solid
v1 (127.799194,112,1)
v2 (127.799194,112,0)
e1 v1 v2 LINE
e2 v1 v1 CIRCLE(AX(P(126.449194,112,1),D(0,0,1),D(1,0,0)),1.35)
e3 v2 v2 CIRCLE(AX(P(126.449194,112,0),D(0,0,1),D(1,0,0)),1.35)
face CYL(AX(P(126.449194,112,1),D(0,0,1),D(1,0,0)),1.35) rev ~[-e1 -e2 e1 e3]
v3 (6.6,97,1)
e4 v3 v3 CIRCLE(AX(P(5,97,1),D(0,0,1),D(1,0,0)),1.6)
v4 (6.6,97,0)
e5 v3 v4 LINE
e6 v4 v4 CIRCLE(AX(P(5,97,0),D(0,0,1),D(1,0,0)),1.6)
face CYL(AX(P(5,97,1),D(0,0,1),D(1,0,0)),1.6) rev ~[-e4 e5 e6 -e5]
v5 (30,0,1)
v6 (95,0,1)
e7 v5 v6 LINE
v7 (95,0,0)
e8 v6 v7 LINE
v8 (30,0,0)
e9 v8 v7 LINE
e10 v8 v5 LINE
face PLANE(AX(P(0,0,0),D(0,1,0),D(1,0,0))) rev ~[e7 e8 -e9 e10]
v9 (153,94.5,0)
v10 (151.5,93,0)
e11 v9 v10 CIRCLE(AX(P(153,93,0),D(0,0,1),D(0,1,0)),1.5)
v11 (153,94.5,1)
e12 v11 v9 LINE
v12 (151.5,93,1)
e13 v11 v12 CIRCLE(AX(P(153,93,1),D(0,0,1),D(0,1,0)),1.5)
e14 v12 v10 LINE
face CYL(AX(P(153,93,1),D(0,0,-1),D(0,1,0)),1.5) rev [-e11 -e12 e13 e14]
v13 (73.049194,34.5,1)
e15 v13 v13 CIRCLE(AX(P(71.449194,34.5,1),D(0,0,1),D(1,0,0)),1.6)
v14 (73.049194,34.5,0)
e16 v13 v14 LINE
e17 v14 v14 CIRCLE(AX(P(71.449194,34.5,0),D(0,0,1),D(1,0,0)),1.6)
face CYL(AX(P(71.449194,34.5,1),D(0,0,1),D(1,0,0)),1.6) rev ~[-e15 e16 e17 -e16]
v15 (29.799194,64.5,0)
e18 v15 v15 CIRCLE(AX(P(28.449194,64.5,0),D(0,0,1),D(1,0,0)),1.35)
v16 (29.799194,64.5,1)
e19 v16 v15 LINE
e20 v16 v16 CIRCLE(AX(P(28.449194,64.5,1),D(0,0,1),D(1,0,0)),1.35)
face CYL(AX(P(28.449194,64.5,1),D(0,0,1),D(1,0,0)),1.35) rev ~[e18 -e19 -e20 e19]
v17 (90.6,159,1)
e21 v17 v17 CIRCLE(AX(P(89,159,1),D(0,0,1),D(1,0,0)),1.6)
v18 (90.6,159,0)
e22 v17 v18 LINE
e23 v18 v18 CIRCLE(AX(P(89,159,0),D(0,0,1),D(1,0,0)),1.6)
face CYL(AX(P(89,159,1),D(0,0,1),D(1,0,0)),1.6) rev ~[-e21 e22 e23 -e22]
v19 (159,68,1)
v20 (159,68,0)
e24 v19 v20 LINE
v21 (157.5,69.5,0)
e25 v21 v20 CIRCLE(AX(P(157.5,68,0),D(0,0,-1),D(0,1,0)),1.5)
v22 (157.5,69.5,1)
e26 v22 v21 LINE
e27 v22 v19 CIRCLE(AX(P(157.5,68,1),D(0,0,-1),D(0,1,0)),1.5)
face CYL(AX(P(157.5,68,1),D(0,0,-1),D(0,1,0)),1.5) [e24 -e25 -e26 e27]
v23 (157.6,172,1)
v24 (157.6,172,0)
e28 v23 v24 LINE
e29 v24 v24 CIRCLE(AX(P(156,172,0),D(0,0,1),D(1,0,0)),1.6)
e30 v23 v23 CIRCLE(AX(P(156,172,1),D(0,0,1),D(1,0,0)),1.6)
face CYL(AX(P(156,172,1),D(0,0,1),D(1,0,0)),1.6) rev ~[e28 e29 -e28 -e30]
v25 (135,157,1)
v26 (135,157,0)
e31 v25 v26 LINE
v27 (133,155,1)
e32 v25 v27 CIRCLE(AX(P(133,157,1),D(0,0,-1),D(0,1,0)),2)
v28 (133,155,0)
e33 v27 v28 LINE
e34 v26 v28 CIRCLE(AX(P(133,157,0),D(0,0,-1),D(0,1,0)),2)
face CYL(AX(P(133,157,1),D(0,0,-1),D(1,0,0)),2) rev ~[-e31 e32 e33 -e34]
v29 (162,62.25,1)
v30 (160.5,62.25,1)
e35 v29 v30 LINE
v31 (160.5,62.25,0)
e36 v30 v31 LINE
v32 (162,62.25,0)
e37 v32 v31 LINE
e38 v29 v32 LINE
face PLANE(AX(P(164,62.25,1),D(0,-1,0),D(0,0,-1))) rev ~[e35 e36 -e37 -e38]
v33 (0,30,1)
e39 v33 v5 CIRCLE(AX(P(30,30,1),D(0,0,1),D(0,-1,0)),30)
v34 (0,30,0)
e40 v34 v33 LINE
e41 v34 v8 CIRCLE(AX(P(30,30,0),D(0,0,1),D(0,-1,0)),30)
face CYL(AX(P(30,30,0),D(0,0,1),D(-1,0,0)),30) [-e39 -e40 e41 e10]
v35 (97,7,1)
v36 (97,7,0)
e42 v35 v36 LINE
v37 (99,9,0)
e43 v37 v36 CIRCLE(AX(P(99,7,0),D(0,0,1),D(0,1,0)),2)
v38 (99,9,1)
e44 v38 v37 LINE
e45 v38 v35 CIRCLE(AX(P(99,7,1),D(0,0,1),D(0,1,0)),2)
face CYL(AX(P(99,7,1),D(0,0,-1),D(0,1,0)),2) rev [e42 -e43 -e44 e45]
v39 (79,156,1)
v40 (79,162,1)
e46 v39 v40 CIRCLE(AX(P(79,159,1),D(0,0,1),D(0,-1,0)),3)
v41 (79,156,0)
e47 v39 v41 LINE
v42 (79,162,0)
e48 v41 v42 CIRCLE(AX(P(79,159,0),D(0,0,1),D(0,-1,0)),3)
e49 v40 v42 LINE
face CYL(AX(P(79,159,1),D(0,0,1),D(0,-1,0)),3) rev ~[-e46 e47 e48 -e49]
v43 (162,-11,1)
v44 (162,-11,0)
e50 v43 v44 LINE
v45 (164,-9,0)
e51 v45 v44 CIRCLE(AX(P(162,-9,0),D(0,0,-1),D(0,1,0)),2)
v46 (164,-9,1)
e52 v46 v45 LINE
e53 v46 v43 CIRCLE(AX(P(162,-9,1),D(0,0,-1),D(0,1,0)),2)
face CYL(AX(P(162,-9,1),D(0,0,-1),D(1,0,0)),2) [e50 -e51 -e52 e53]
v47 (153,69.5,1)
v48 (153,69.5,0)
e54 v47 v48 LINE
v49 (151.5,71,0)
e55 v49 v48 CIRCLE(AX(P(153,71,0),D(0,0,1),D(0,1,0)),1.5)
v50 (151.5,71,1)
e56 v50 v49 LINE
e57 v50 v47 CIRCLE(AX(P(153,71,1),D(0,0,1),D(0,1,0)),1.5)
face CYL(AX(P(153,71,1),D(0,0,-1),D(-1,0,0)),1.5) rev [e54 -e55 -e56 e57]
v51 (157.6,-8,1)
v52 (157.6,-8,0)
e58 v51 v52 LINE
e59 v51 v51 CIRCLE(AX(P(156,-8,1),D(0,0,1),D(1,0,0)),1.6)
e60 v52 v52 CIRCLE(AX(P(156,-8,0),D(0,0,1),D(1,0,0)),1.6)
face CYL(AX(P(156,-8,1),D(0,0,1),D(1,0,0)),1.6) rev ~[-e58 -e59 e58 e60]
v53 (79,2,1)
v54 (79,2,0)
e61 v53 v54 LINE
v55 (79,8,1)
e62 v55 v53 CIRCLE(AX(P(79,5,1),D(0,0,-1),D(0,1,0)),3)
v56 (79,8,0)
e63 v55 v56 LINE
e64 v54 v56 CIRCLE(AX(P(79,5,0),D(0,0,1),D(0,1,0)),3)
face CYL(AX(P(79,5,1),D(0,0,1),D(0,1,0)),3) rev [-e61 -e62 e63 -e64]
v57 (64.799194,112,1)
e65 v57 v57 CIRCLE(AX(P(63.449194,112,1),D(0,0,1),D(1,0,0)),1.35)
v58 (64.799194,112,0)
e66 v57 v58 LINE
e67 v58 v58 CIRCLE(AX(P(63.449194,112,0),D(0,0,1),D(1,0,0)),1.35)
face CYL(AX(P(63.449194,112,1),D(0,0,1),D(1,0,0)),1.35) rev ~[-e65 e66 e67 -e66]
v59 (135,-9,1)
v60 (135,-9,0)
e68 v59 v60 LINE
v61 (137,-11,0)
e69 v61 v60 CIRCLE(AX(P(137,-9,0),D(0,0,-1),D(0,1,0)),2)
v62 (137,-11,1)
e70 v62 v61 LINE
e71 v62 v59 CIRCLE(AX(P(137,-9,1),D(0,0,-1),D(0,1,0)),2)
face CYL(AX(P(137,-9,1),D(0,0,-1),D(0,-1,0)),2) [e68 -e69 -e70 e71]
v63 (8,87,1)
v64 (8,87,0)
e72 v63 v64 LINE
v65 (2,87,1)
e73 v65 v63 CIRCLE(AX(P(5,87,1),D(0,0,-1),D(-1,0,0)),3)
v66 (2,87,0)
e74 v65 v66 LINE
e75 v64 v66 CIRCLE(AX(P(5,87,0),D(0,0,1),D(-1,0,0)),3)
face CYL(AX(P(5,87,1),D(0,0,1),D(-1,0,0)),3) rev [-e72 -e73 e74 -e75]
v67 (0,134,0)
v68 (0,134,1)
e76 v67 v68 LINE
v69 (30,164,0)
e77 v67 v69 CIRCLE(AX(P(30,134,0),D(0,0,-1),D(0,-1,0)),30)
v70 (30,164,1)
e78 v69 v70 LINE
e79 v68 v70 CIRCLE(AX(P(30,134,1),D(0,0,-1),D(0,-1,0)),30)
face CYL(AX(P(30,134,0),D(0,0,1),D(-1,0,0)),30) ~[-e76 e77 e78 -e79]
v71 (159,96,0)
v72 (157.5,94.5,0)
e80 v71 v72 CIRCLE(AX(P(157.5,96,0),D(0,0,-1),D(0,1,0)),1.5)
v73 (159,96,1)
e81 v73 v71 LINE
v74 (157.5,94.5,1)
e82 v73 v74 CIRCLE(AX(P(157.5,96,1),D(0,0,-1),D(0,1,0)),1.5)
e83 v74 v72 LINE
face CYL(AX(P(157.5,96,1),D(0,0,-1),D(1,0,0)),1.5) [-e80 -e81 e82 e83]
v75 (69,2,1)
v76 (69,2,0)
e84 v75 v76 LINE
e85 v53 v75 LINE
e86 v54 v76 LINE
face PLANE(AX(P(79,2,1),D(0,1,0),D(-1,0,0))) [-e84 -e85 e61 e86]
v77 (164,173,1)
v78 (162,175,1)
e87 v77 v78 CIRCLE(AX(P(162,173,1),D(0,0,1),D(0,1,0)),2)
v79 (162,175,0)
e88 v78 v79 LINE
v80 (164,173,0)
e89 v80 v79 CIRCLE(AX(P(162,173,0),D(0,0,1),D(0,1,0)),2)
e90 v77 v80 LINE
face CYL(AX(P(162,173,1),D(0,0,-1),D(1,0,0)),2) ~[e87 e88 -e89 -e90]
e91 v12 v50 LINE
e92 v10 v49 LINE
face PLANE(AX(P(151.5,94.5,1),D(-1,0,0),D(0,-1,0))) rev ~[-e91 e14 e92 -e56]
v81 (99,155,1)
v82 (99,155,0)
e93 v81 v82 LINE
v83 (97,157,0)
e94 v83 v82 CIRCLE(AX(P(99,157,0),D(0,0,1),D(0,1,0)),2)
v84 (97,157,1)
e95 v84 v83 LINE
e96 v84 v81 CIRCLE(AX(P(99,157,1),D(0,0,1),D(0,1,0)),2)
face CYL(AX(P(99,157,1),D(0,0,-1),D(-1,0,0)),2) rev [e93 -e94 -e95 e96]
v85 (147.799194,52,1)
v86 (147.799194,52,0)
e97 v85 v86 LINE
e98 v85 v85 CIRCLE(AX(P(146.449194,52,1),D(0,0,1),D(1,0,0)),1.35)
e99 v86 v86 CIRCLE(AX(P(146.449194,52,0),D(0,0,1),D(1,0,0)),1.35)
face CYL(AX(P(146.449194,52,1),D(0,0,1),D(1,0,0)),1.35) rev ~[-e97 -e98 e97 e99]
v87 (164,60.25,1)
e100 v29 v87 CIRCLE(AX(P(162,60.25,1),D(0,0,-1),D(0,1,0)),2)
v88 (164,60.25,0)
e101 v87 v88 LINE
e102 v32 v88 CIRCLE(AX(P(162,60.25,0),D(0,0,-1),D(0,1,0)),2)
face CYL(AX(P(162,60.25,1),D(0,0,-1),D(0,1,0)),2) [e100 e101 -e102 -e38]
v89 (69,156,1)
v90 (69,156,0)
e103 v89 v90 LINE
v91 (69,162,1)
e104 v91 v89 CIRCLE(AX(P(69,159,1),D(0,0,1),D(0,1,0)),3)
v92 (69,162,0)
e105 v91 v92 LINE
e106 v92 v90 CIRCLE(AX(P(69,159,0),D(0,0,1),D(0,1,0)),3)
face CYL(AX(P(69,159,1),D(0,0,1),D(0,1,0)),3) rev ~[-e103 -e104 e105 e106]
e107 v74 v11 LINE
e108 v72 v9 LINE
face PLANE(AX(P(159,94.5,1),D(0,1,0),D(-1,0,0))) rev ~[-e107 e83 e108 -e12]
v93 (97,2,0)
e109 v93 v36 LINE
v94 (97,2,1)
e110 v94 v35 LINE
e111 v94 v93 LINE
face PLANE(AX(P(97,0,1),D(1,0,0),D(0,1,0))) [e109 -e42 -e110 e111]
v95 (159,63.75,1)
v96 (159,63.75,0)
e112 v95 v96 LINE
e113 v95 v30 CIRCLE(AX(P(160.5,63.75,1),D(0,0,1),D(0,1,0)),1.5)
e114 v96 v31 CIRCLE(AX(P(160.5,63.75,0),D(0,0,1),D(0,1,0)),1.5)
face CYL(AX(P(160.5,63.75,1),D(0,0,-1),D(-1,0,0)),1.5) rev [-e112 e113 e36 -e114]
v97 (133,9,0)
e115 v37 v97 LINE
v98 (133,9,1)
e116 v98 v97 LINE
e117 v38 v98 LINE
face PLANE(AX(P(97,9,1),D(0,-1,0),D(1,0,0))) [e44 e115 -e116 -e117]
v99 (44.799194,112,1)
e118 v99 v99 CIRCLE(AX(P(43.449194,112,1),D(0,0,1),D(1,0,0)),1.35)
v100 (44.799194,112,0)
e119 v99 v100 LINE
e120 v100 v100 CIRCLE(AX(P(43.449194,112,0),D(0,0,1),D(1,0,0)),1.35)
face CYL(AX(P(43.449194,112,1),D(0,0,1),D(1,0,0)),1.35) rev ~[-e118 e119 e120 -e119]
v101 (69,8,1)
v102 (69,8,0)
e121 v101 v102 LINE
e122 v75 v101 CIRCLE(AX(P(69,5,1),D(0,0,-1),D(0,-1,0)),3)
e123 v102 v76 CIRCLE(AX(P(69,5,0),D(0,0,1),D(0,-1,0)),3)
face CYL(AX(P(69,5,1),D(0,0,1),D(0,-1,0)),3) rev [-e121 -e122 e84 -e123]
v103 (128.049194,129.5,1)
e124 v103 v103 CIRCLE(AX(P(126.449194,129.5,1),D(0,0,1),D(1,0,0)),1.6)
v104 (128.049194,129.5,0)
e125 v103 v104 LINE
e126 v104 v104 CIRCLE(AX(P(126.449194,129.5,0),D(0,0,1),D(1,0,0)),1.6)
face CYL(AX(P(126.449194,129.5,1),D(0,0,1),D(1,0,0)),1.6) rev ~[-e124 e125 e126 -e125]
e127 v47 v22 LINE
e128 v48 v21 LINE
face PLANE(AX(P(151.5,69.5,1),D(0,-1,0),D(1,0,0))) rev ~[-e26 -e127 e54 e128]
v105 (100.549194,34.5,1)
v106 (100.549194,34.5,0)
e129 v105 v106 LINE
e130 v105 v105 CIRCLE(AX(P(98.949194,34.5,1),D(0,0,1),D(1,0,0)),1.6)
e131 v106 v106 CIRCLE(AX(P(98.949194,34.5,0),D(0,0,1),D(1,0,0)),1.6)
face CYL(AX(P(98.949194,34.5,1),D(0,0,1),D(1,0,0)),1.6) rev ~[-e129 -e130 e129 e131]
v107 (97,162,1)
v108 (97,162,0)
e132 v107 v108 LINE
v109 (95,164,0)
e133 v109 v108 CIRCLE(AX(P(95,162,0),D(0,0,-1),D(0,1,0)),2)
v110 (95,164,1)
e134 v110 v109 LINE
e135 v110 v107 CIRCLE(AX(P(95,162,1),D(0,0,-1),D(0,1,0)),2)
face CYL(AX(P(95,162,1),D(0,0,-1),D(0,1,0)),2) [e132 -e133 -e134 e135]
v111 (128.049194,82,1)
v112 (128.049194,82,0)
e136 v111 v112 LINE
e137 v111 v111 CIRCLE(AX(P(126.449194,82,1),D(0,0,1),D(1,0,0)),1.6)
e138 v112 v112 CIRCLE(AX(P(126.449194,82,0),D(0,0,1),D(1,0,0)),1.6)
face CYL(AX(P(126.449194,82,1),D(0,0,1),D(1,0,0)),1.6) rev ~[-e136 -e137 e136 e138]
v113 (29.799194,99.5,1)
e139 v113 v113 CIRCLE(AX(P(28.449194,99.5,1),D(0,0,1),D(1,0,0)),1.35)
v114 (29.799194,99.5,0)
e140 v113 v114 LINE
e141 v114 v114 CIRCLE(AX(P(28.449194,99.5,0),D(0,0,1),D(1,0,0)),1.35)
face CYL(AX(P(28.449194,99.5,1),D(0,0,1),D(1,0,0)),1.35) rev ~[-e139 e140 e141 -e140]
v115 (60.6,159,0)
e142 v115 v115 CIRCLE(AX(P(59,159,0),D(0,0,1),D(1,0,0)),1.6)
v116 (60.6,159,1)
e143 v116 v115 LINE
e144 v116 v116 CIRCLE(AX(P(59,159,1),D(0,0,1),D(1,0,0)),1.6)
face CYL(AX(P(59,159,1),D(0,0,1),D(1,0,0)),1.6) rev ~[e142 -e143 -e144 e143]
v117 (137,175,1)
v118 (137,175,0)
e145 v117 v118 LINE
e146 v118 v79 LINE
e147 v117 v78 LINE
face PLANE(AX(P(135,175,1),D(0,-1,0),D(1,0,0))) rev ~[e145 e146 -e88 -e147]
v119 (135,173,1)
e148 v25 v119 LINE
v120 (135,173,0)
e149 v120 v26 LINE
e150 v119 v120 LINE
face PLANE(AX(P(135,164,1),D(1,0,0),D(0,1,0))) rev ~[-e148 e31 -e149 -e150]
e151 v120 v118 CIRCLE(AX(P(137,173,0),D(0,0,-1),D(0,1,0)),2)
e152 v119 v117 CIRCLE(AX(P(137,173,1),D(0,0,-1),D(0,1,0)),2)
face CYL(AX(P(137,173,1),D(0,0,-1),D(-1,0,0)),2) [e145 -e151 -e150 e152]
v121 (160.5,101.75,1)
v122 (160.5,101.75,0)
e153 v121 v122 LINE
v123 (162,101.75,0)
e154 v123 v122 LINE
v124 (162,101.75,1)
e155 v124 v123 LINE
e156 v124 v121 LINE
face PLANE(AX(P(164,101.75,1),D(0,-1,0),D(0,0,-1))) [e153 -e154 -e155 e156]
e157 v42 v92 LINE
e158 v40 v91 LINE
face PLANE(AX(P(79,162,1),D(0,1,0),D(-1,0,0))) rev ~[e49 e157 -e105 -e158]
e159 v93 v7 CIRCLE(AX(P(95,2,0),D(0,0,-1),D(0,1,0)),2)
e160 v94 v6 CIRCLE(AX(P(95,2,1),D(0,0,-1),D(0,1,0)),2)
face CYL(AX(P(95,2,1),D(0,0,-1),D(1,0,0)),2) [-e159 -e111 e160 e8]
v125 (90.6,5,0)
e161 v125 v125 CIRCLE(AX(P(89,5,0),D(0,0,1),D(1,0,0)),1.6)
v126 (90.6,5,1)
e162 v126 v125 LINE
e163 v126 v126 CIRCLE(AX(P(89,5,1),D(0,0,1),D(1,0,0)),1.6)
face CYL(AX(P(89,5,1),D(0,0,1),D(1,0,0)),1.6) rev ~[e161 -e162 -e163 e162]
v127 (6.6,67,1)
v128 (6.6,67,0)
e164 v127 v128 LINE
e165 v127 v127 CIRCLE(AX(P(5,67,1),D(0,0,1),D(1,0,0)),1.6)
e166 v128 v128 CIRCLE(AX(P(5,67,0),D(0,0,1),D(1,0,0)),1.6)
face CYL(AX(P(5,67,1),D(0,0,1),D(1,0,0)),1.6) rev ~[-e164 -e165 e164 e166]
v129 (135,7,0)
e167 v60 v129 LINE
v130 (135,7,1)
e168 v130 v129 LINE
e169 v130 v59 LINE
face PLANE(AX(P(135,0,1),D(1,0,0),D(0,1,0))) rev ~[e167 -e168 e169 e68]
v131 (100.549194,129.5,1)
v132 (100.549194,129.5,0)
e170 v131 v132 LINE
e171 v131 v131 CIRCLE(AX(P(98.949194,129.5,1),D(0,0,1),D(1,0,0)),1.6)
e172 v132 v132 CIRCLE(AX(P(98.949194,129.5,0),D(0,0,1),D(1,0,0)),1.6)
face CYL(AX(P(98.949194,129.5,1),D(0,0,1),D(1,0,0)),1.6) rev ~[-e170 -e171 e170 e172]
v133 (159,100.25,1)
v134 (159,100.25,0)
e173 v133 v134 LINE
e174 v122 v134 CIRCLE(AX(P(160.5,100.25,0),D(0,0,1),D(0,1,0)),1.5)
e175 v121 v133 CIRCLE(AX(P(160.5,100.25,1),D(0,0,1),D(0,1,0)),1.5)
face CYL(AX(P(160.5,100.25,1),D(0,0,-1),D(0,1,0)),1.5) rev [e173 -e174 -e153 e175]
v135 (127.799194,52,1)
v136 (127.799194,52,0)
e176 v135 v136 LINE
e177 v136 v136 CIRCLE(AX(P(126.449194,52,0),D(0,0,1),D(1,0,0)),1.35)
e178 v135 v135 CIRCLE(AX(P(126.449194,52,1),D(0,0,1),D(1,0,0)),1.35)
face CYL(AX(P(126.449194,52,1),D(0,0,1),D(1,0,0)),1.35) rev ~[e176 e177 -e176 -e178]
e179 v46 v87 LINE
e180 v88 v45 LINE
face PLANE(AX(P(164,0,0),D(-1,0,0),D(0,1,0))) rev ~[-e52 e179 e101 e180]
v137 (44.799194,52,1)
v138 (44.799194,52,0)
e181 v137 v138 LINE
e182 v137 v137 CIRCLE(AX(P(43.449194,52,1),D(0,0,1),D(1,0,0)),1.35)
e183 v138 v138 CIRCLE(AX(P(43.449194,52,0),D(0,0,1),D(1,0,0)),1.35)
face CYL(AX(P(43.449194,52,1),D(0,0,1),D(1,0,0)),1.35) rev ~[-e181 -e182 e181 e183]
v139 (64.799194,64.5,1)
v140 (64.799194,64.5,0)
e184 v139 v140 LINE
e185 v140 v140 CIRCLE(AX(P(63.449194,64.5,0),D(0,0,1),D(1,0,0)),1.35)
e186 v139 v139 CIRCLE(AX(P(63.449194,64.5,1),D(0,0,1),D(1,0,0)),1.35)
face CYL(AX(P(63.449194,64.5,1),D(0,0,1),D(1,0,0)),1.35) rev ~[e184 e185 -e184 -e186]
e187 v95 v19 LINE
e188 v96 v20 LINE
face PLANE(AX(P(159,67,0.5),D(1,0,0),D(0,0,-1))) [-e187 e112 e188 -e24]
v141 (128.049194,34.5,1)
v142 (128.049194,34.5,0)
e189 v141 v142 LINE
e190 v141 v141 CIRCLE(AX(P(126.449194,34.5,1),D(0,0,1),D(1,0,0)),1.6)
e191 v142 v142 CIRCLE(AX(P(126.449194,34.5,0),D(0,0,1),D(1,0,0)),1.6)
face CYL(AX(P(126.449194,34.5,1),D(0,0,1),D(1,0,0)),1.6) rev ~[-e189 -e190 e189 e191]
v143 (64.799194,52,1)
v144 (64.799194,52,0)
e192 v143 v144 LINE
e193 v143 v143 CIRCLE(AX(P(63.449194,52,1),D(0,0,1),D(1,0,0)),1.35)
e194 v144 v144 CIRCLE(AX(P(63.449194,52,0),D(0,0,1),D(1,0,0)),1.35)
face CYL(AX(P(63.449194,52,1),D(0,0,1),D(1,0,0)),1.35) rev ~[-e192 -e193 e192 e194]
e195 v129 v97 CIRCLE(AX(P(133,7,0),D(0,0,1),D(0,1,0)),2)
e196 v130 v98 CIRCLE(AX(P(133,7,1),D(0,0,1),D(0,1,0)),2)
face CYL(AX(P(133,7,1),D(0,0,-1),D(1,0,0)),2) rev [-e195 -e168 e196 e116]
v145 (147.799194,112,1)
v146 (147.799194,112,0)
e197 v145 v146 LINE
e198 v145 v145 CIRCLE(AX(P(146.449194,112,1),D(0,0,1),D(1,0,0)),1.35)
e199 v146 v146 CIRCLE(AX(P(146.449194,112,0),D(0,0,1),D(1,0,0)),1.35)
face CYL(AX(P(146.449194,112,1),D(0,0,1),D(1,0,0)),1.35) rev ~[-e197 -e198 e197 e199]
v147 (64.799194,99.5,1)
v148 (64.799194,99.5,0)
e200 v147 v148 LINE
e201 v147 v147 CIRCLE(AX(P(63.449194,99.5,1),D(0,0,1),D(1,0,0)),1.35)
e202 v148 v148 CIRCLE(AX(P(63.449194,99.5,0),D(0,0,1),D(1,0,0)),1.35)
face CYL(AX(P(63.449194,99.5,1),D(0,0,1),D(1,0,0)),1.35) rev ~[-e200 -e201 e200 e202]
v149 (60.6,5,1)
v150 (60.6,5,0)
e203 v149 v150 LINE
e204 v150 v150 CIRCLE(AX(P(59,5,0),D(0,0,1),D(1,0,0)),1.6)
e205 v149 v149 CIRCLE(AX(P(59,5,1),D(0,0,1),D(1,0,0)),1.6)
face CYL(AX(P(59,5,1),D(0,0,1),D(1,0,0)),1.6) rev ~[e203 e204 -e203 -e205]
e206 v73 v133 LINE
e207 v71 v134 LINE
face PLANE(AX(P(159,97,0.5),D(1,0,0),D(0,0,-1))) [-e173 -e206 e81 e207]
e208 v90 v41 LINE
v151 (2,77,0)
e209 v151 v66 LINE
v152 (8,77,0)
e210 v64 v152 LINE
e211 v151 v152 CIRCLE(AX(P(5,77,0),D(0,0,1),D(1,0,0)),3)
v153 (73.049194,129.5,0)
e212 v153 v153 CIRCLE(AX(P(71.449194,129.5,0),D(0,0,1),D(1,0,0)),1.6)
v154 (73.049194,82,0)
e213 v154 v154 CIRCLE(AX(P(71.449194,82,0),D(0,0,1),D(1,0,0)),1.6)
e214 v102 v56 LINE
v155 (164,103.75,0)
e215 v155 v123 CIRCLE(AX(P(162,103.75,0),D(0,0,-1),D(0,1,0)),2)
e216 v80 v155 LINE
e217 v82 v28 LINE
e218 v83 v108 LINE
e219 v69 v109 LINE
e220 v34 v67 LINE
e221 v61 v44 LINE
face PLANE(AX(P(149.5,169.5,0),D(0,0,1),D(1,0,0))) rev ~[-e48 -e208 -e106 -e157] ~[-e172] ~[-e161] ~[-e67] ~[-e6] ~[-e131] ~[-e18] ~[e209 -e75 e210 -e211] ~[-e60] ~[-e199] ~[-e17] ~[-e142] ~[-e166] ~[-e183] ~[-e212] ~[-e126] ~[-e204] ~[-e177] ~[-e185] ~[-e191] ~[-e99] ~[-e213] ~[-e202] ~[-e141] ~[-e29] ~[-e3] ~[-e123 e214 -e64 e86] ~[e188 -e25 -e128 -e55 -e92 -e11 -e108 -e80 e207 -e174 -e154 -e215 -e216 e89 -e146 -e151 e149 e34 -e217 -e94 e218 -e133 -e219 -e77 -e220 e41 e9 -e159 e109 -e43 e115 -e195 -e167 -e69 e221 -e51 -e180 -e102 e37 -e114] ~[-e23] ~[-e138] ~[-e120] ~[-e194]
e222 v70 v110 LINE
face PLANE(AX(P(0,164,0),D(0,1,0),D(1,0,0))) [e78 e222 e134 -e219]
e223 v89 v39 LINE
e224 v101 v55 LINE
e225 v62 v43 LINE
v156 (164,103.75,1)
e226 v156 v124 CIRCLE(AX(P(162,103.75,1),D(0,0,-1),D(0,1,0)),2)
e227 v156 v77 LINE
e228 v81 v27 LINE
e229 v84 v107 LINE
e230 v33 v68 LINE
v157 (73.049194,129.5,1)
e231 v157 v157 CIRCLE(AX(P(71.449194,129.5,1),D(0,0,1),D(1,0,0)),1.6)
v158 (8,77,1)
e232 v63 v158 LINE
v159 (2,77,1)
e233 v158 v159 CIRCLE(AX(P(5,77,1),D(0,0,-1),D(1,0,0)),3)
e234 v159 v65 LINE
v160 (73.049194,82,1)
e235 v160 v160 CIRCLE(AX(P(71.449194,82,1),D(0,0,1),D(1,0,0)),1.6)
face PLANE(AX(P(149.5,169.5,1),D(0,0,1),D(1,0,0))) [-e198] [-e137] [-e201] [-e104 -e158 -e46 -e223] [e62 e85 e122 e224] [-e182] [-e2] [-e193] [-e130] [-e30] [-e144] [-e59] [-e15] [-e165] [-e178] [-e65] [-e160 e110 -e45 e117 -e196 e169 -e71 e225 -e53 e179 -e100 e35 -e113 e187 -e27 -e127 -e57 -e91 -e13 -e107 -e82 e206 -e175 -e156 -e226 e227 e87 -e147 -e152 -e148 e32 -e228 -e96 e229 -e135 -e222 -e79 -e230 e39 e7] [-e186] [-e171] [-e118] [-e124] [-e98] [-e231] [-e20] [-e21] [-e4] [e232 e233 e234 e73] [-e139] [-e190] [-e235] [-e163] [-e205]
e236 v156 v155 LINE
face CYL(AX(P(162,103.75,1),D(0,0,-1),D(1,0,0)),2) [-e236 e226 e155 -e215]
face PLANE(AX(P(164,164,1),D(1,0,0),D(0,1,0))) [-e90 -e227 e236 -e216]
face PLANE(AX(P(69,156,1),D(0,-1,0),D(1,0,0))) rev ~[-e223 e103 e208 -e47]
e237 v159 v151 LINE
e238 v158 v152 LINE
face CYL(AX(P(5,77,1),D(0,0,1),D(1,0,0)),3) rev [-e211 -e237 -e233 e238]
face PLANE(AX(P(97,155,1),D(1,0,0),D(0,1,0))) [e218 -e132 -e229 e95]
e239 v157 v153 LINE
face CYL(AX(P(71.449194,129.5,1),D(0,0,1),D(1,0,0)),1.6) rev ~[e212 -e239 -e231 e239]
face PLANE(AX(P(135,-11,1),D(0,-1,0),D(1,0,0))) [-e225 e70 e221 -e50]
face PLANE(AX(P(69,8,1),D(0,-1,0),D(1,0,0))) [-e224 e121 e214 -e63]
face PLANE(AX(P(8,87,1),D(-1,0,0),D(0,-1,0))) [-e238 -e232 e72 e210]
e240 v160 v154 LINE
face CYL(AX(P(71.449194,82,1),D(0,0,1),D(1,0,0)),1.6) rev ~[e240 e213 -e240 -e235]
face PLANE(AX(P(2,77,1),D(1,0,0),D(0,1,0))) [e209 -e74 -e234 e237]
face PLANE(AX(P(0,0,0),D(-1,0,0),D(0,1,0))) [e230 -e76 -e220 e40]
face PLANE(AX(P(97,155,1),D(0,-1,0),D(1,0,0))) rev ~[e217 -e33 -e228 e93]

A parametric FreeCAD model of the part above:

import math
import FreeCAD as App
import Part
import Sketcher
Q = App.Units.Quantity


def edges_at(feature, points):
    """Names of the edges that pass closest to the given points."""
    edges = feature.Shape.Edges
    near = lambda p: min(range(len(edges)), key=lambda i: edges[i].distToShape(Part.Vertex(*p))[0])
    return sorted({f"Edge{near(p) + 1}" for p in points})

doc = App.newDocument("Part")
body = doc.addObject("PartDesign::Body", "Body")

sketch1 = body.newObject("Sketcher::SketchObject", "Sketch")
sketch1.AttachmentSupport = (doc.getObject("XY_Plane"), [""])
sketch1.MapMode = "FlatFace"
sketch1.addGeometry([
    Part.LineSegment(App.Vector(0, 164, 0), App.Vector(0, 0, 0)),
    Part.LineSegment(App.Vector(0, 0, 0), App.Vector(164, 0, 0)),
    Part.LineSegment(App.Vector(164, 0, 0), App.Vector(164, 164, 0)),
    Part.LineSegment(App.Vector(164, 164, 0), App.Vector(0, 164, 0)),
], False)
sketch1.addConstraint([
    Sketcher.Constraint("Coincident", 0, 2, 1, 1),
    Sketcher.Constraint("Coincident", 1, 2, 2, 1),
    Sketcher.Constraint("Coincident", 2, 2, 3, 1),
    Sketcher.Constraint("Coincident", 3, 2, 0, 1),
    Sketcher.Constraint("Vertical", 0),
    Sketcher.Constraint("Horizontal", 1),
    Sketcher.Constraint("Vertical", 2),
    Sketcher.Constraint("Horizontal", 3),
    Sketcher.Constraint("Coincident", 0, 2, -1, 1),
    Sketcher.Constraint("Equal", 3, 0),
    Sketcher.Constraint("DistanceX", 1, 1, 1, 2, Q("164 mm")),
])
pad1 = body.newObject("PartDesign::Pad", "Pad")
pad1.Profile = sketch1
pad1.Length = 1
doc.recompute()

fillet = body.newObject("PartDesign::Fillet", "Fillet")
fillet.Base = (pad1, edges_at(pad1, [(0, 164, 0.5), (0, 0, 0.5)]))
fillet.Radius = 30

sketch2 = body.newObject("Sketcher::SketchObject", "Sketch001")
sketch2.AttachmentSupport = (doc.getObject("XY_Plane"), [""])
sketch2.MapMode = "FlatFace"
sketch2.AttachmentOffset = App.Placement(App.Vector(0, 0, 1), App.Rotation())
sketch2.addGeometry([
    Part.Circle(App.Vector(5, 97, 0), App.Vector(0, 0, 1), 1.6),
    Part.Circle(App.Vector(5, 67, 0), App.Vector(0, 0, 1), 1.6),
    Part.LineSegment(App.Vector(2, 87, 0), App.Vector(2, 77, 0)),
    Part.ArcOfCircle(Part.Circle(App.Vector(5, 77, 0), App.Vector(0, 0, 1), 3), math.radians(180), math.radians(360)),
    Part.LineSegment(App.Vector(8, 77, 0), App.Vector(8, 87, 0)),
    Part.ArcOfCircle(Part.Circle(App.Vector(5, 87, 0), App.Vector(0, 0, 1), 3), math.radians(0), math.radians(180)),
], False)
sketch2.addConstraint([
    Sketcher.Constraint("Tangent", 2, 2, 3, 1),
    Sketcher.Constraint("Tangent", 3, 2, 4, 1),
    Sketcher.Constraint("Tangent", 4, 2, 5, 1),
    Sketcher.Constraint("Tangent", 5, 2, 2, 1),
    Sketcher.Constraint("Vertical", 2),
    Sketcher.Constraint("Vertical", 4),
    Sketcher.Constraint("Equal", 0, 1),
    Sketcher.Constraint("Vertical", 0, 3, 1, 3),
    Sketcher.Constraint("Vertical", 1, 3, 3, 3),
    Sketcher.Constraint("Radius", 3, Q("3 mm")),
    Sketcher.Constraint("Diameter", 0, Q("3.2 mm")),
    Sketcher.Constraint("DistanceY", 2, 2, 2, 1, Q("10 mm")),
    Sketcher.Constraint("DistanceX", -1, 1, 0, 3, Q("5 mm")),
    Sketcher.Constraint("DistanceY", -1, 1, 0, 3, Q("97 mm")),
    Sketcher.Constraint("DistanceY", -1, 1, 1, 3, Q("67 mm")),
    Sketcher.Constraint("DistanceY", -1, 1, 3, 3, Q("77 mm")),
])
pocket1 = body.newObject("PartDesign::Pocket", "Pocket")
pocket1.Profile = sketch2
pocket1.Type = "ThroughAll"

sketch3 = body.newObject("Sketcher::SketchObject", "Sketch002")
sketch3.AttachmentSupport = (doc.getObject("XY_Plane"), [""])
sketch3.MapMode = "FlatFace"
sketch3.AttachmentOffset = App.Placement(App.Vector(0, 0, 1), App.Rotation())
sketch3.addGeometry([
    Part.Circle(App.Vector(59, 5, 0), App.Vector(0, 0, 1), 1.6),
    Part.Circle(App.Vector(89, 5, 0), App.Vector(0, 0, 1), 1.6),
    Part.Circle(App.Vector(89, 159, 0), App.Vector(0, 0, 1), 1.6),
    Part.Circle(App.Vector(59, 159, 0), App.Vector(0, 0, 1), 1.6),
    Part.LineSegment(App.Vector(69, 2, 0), App.Vector(79, 2, 0)),
    Part.ArcOfCircle(Part.Circle(App.Vector(79, 5, 0), App.Vector(0, 0, 1), 3), math.radians(-90), math.radians(90)),
    Part.LineSegment(App.Vector(79, 8, 0), App.Vector(69, 8, 0)),
    Part.ArcOfCircle(Part.Circle(App.Vector(69, 5, 0), App.Vector(0, 0, 1), 3), math.radians(90), math.radians(270)),
    Part.LineSegment(App.Vector(79, 162, 0), App.Vector(69, 162, 0)),
    Part.ArcOfCircle(Part.Circle(App.Vector(69, 159, 0), App.Vector(0, 0, 1), 3), math.radians(90), math.radians(270)),
    Part.LineSegment(App.Vector(69, 156, 0), App.Vector(79, 156, 0)),
    Part.ArcOfCircle(Part.Circle(App.Vector(79, 159, 0), App.Vector(0, 0, 1), 3), math.radians(-90), math.radians(90)),
], False)
sketch3.addConstraint([
    Sketcher.Constraint("Tangent", 4, 2, 5, 1),
    Sketcher.Constraint("Tangent", 5, 2, 6, 1),
    Sketcher.Constraint("Tangent", 6, 2, 7, 1),
    Sketcher.Constraint("Tangent", 7, 2, 4, 1),
    Sketcher.Constraint("Tangent", 8, 2, 9, 1),
    Sketcher.Constraint("Tangent", 9, 2, 10, 1),
    Sketcher.Constraint("Tangent", 10, 2, 11, 1),
    Sketcher.Constraint("Tangent", 11, 2, 8, 1),
    Sketcher.Constraint("Horizontal", 4),
    Sketcher.Constraint("Horizontal", 6),
    Sketcher.Constraint("Horizontal", 8),
    Sketcher.Constraint("Horizontal", 10),
    Sketcher.Constraint("Equal", 0, 1),
    Sketcher.Constraint("Equal", 1, 2),
    Sketcher.Constraint("Equal", 2, 3),
    Sketcher.Constraint("Equal", 7, 9),
    Sketcher.Constraint("Horizontal", 0, 3, 1, 3),
    Sketcher.Constraint("Horizontal", 2, 3, 3, 3),
    Sketcher.Constraint("Horizontal", 1, 3, 5, 3),
    Sketcher.Constraint("Horizontal", 3, 3, 9, 3),
    Sketcher.Constraint("Vertical", 1, 3, 2, 3),
    Sketcher.Constraint("Vertical", 0, 3, 3, 3),
    Sketcher.Constraint("Vertical", 7, 3, 9, 3),
    Sketcher.Constraint("Vertical", 5, 3, 11, 3),
    Sketcher.Constraint("Radius", 5, Q("3 mm")),
    Sketcher.Constraint("Diameter", 0, Q("3.2 mm")),
    Sketcher.Constraint("DistanceX", 4, 1, 4, 2, Q("10 mm")),
    Sketcher.Constraint("DistanceX", -1, 1, 0, 3, Q("59 mm")),
    Sketcher.Constraint("DistanceY", -1, 1, 0, 3, Q("5 mm")),
    Sketcher.Constraint("DistanceX", -1, 1, 1, 3, Q("89 mm")),
    Sketcher.Constraint("DistanceY", -1, 1, 2, 3, Q("159 mm")),
    Sketcher.Constraint("DistanceX", -1, 1, 5, 3, Q("79 mm")),
])
pocket2 = body.newObject("PartDesign::Pocket", "Pocket001")
pocket2.Profile = sketch3
pocket2.Type = "ThroughAll"

sketch4 = body.newObject("Sketcher::SketchObject", "Sketch003")
sketch4.AttachmentSupport = (doc.getObject("XY_Plane"), [""])
sketch4.MapMode = "FlatFace"
sketch4.AttachmentOffset = App.Placement(App.Vector(0, 0, 1), App.Rotation())
sketch4.addGeometry([
    Part.LineSegment(App.Vector(97, 164, 0), App.Vector(97, 155, 0)),
    Part.LineSegment(App.Vector(97, 155, 0), App.Vector(135, 155, 0)),
    Part.LineSegment(App.Vector(135, 155, 0), App.Vector(135, 164, 0)),
    Part.LineSegment(App.Vector(135, 164, 0), App.Vector(97, 164, 0)),
    Part.LineSegment(App.Vector(97, 9, 0), App.Vector(97, 0, 0)),
    Part.LineSegment(App.Vector(97, 0, 0), App.Vector(135, 0, 0)),
    Part.LineSegment(App.Vector(135, 0, 0), App.Vector(135, 9, 0)),
    Part.LineSegment(App.Vector(135, 9, 0), App.Vector(97, 9, 0)),
], False)
sketch4.addConstraint([
    Sketcher.Constraint("Coincident", 0, 2, 1, 1),
    Sketcher.Constraint("Coincident", 1, 2, 2, 1),
    Sketcher.Constraint("Coincident", 2, 2, 3, 1),
    Sketcher.Constraint("Coincident", 3, 2, 0, 1),
    Sketcher.Constraint("Coincident", 4, 2, 5, 1),
    Sketcher.Constraint("Coincident", 5, 2, 6, 1),
    Sketcher.Constraint("Coincident", 6, 2, 7, 1),
    Sketcher.Constraint("Coincident", 7, 2, 4, 1),
    Sketcher.Constraint("Vertical", 0),
    Sketcher.Constraint("Horizontal", 1),
    Sketcher.Constraint("Vertical", 2),
    Sketcher.Constraint("Horizontal", 3),
    Sketcher.Constraint("Vertical", 4),
    Sketcher.Constraint("Horizontal", 5),
    Sketcher.Constraint("Vertical", 6),
    Sketcher.Constraint("Horizontal", 7),
    Sketcher.Constraint("PointOnObject", 4, 2, -1),
    Sketcher.Constraint("Vertical", 3, 2, 4, 2),
    Sketcher.Constraint("Vertical", 2, 2, 5, 2),
    Sketcher.Constraint("Equal", 2, 4),
    Sketcher.Constraint("DistanceX", 1, 1, 1, 2, Q("38 mm")),
    Sketcher.Constraint("DistanceY", 0, 2, 0, 1, Q("9 mm")),
    Sketcher.Constraint("DistanceX", -1, 1, 0, 2, Q("97 mm")),
    Sketcher.Constraint("DistanceY", -1, 1, 0, 2, Q("155 mm")),
])
pocket3 = body.newObject("PartDesign::Pocket", "Pocket002")
pocket3.Profile = sketch4
pocket3.Type = "ThroughAll"

sketch5 = body.newObject("Sketcher::SketchObject", "Sketch004")
sketch5.AttachmentSupport = (doc.getObject("YZ_Plane"), [""])
sketch5.MapMode = "FlatFace"
sketch5.AttachmentOffset = App.Placement(App.Vector(0, 0, 164), App.Rotation())
sketch5.addGeometry([
    Part.LineSegment(App.Vector(71.8, 1, 0), App.Vector(62.2, 1, 0)),
    Part.LineSegment(App.Vector(62.2, 1, 0), App.Vector(62.2, 0, 0)),
    Part.LineSegment(App.Vector(62.2, 0, 0), App.Vector(71.8, 0, 0)),
    Part.LineSegment(App.Vector(71.8, 0, 0), App.Vector(71.8, 1, 0)),
    Part.LineSegment(App.Vector(101.8, 1, 0), App.Vector(92.2, 1, 0)),
    Part.LineSegment(App.Vector(92.2, 1, 0), App.Vector(92.2, 0, 0)),
    Part.LineSegment(App.Vector(92.2, 0, 0), App.Vector(101.8, 0, 0)),
    Part.LineSegment(App.Vector(101.8, 0, 0), App.Vector(101.8, 1, 0)),
], False)
sketch5.addConstraint([
    Sketcher.Constraint("Coincident", 0, 2, 1, 1),
    Sketcher.Constraint("Coincident", 1, 2, 2, 1),
    Sketcher.Constraint("Coincident", 2, 2, 3, 1),
    Sketcher.Constraint("Coincident", 3, 2, 0, 1),
    Sketcher.Constraint("Coincident", 4, 2, 5, 1),
    Sketcher.Constraint("Coincident", 5, 2, 6, 1),
    Sketcher.Constraint("Coincident", 6, 2, 7, 1),
    Sketcher.Constraint("Coincident", 7, 2, 4, 1),
    Sketcher.Constraint("Horizontal", 0),
    Sketcher.Constraint("Vertical", 1),
    Sketcher.Constraint("Horizontal", 2),
    Sketcher.Constraint("Vertical", 3),
    Sketcher.Constraint("Horizontal", 4),
    Sketcher.Constraint("Vertical", 5),
    Sketcher.Constraint("Horizontal", 6),
    Sketcher.Constraint("Vertical", 7),
    Sketcher.Constraint("PointOnObject", 1, 2, -1),
    Sketcher.Constraint("PointOnObject", 5, 2, -1),
    Sketcher.Constraint("Horizontal", 3, 2, 4, 2),
    Sketcher.Constraint("Equal", 2, 4),
    Sketcher.Constraint("DistanceY", 1, 2, 1, 1, Q("1 mm")),
    Sketcher.Constraint("DistanceX", 0, 2, 0, 1, Q("9.5 mm")),
    Sketcher.Constraint("DistanceX", 0, 2, 4, 2, Q("30 mm")),
    Sketcher.Constraint("DistanceX", -1, 1, 0, 2, Q("62.25 mm")),
])
pocket4 = body.newObject("PartDesign::Pocket", "Pocket003")
pocket4.Profile = sketch5
pocket4.Length = 5
doc.recompute()

fillet2 = body.newObject("PartDesign::Fillet", "Fillet001")
fillet2.Base = (pocket4, edges_at(pocket4, [
    (159, 62.25, 0.5),
    (159, 71.75, 0.5),
    (159, 101.75, 0.5),
    (159, 92.25, 0.5),
]))
fillet2.Radius = 1.5

sketch6 = body.newObject("Sketcher::SketchObject", "Sketch005")
sketch6.AttachmentSupport = (doc.getObject("XY_Plane"), [""])
sketch6.MapMode = "FlatFace"
sketch6.AttachmentOffset = App.Placement(App.Vector(0, 0, 1), App.Rotation())
sketch6.addGeometry([
    Part.LineSegment(App.Vector(135, 175, 0), App.Vector(135, 164, 0)),
    Part.LineSegment(App.Vector(135, 164, 0), App.Vector(164, 164, 0)),
    Part.LineSegment(App.Vector(164, 164, 0), App.Vector(164, 175, 0)),
    Part.LineSegment(App.Vector(164, 175, 0), App.Vector(135, 175, 0)),
    Part.LineSegment(App.Vector(135, 0, 0), App.Vector(135, -11, 0)),
    Part.LineSegment(App.Vector(135, -11, 0), App.Vector(164, -11, 0)),
    Part.LineSegment(App.Vector(164, -11, 0), App.Vector(164, 0, 0)),
    Part.LineSegment(App.Vector(164, 0, 0), App.Vector(135, 0, 0)),
], False)
sketch6.addConstraint([
    Sketcher.Constraint("Coincident", 0, 2, 1, 1),
    Sketcher.Constraint("Coincident", 1, 2, 2, 1),
    Sketcher.Constraint("Coincident", 2, 2, 3, 1),
    Sketcher.Constraint("Coincident", 3, 2, 0, 1),
    Sketcher.Constraint("Coincident", 4, 2, 5, 1),
    Sketcher.Constraint("Coincident", 5, 2, 6, 1),
    Sketcher.Constraint("Coincident", 6, 2, 7, 1),
    Sketcher.Constraint("Coincident", 7, 2, 4, 1),
    Sketcher.Constraint("Vertical", 0),
    Sketcher.Constraint("Horizontal", 1),
    Sketcher.Constraint("Vertical", 2),
    Sketcher.Constraint("Horizontal", 3),
    Sketcher.Constraint("Vertical", 4),
    Sketcher.Constraint("Horizontal", 5),
    Sketcher.Constraint("Vertical", 6),
    Sketcher.Constraint("Horizontal", 7),
    Sketcher.Constraint("PointOnObject", 6, 2, -1),
    Sketcher.Constraint("Vertical", 3, 2, 4, 2),
    Sketcher.Constraint("Vertical", 2, 2, 5, 2),
    Sketcher.Constraint("Equal", 2, 4),
    Sketcher.Constraint("DistanceX", 1, 1, 1, 2, Q("29 mm")),
    Sketcher.Constraint("DistanceY", 0, 2, 0, 1, Q("11 mm")),
    Sketcher.Constraint("DistanceX", -1, 1, 0, 2, Q("135 mm")),
    Sketcher.Constraint("DistanceY", -1, 1, 0, 2, Q("164 mm")),
])
pad2 = body.newObject("PartDesign::Pad", "Pad001")
pad2.Profile = sketch6
pad2.Length = 1
pad2.Reversed = True
doc.recompute()

fillet3 = body.newObject("PartDesign::Fillet", "Fillet002")
fillet3.Base = (pad2, edges_at(pad2, [
    (135, 155, 0.5),
    (97, 155, 0.5),
    (97, 164, 0.5),
    (97, 0, 0.5),
    (97, 9, 0.5),
    (135, 9, 0.5),
    (164, 71.75, 0.5),
    (164, 62.25, 0.5),
    (164, 92.25, 0.5),
    (164, 101.75, 0.5),
    (164, 175, 0.5),
    (135, 175, 0.5),
    (164, -11, 0.5),
    (135, -11, 0.5),
]))
fillet3.Radius = 2

sketch7 = body.newObject("Sketcher::SketchObject", "Sketch006")
sketch7.AttachmentSupport = (doc.getObject("XY_Plane"), [""])
sketch7.MapMode = "FlatFace"
sketch7.AttachmentOffset = App.Placement(App.Vector(0, 0, 1), App.Rotation())
sketch7.addGeometry([
    Part.Circle(App.Vector(156, 172, 0), App.Vector(0, 0, 1), 1.6),
    Part.Circle(App.Vector(156, -8, 0), App.Vector(0, 0, 1), 1.6),
], False)
sketch7.addConstraint([
    Sketcher.Constraint("Equal", 0, 1),
    Sketcher.Constraint("Vertical", 0, 3, 1, 3),
    Sketcher.Constraint("Diameter", 0, Q("3.2 mm")),
    Sketcher.Constraint("DistanceX", -1, 1, 0, 3, Q("156 mm")),
    Sketcher.Constraint("DistanceY", -1, 1, 0, 3, Q("172 mm")),
    Sketcher.Constraint("DistanceY", 1, 3, -1, 1, Q("8 mm")),
])
pocket5 = body.newObject("PartDesign::Pocket", "Pocket004")
pocket5.Profile = sketch7
pocket5.Type = "ThroughAll"

sketch8 = body.newObject("Sketcher::SketchObject", "Sketch007")
sketch8.AttachmentSupport = (doc.getObject("XY_Plane"), [""])
sketch8.MapMode = "FlatFace"
sketch8.AttachmentOffset = App.Placement(App.Vector(0, 0, 1), App.Rotation())
sketch8.addGeometry([
    Part.Circle(App.Vector(71.4, 129.5, 0), App.Vector(0, 0, 1), 1.6),
    Part.Circle(App.Vector(98.9, 129.5, 0), App.Vector(0, 0, 1), 1.6),
    Part.Circle(App.Vector(126.4, 129.5, 0), App.Vector(0, 0, 1), 1.6),
    Part.Circle(App.Vector(71.4, 82, 0), App.Vector(0, 0, 1), 1.6),
    Part.Circle(App.Vector(126.4, 34.5, 0), App.Vector(0, 0, 1), 1.6),
    Part.Circle(App.Vector(98.9, 34.5, 0), App.Vector(0, 0, 1), 1.6),
    Part.Circle(App.Vector(71.4, 34.5, 0), App.Vector(0, 0, 1), 1.6),
    Part.Circle(App.Vector(126.4, 82, 0), App.Vector(0, 0, 1), 1.6),
    Part.Circle(App.Vector(28.4, 99.5, 0), App.Vector(0, 0, 1), 1.4),
    Part.Circle(App.Vector(63.4, 99.5, 0), App.Vector(0, 0, 1), 1.4),
    Part.Circle(App.Vector(63.4, 64.5, 0), App.Vector(0, 0, 1), 1.4),
    Part.Circle(App.Vector(28.4, 64.5, 0), App.Vector(0, 0, 1), 1.4),
    Part.Circle(App.Vector(146.4, 112, 0), App.Vector(0, 0, 1), 1.4),
    Part.Circle(App.Vector(43.4, 112, 0), App.Vector(0, 0, 1), 1.4),
    Part.Circle(App.Vector(63.4, 112, 0), App.Vector(0, 0, 1), 1.4),
    Part.Circle(App.Vector(63.4, 52, 0), App.Vector(0, 0, 1), 1.4),
    Part.Circle(App.Vector(43.4, 52, 0), App.Vector(0, 0, 1), 1.4),
    Part.Circle(App.Vector(126.4, 112, 0), App.Vector(0, 0, 1), 1.4),
    Part.Circle(App.Vector(146.4, 52, 0), App.Vector(0, 0, 1), 1.4),
    Part.Circle(App.Vector(126.4, 52, 0), App.Vector(0, 0, 1), 1.4),
], False)
sketch8.addConstraint([
    Sketcher.Constraint("Equal", 0, 1),
    Sketcher.Constraint("Equal", 1, 2),
    Sketcher.Constraint("Equal", 2, 3),
    Sketcher.Constraint("Equal", 3, 4),
    Sketcher.Constraint("Equal", 4, 5),
    Sketcher.Constraint("Equal", 5, 6),
    Sketcher.Constraint("Equal", 6, 7),
    Sketcher.Constraint("Equal", 8, 9),
    Sketcher.Constraint("Equal", 9, 10),
    Sketcher.Constraint("Equal", 10, 11),
    Sketcher.Constraint("Equal", 11, 12),
    Sketcher.Constraint("Equal", 12, 13),
    Sketcher.Constraint("Equal", 13, 14),
    Sketcher.Constraint("Equal", 14, 15),
    Sketcher.Constraint("Equal", 15, 16),
    Sketcher.Constraint("Equal", 16, 17),
    Sketcher.Constraint("Equal", 17, 18),
    Sketcher.Constraint("Equal", 18, 19),
    Sketcher.Constraint("Horizontal", 0, 3, 1, 3),
    Sketcher.Constraint("Horizontal", 1, 3, 2, 3),
    Sketcher.Constraint("Horizontal", 4, 3, 5, 3),
    Sketcher.Constraint("Horizontal", 5, 3, 6, 3),
    Sketcher.Constraint("Horizontal", 3, 3, 7, 3),
    Sketcher.Constraint("Horizontal", 8, 3, 9, 3),
    Sketcher.Constraint("Horizontal", 10, 3, 11, 3),
    Sketcher.Constraint("Horizontal", 12, 3, 13, 3),
    Sketcher.Constraint("Horizontal", 13, 3, 14, 3),
    Sketcher.Constraint("Horizontal", 15, 3, 16, 3),
    Sketcher.Constraint("Horizontal", 14, 3, 17, 3),
    Sketcher.Constraint("Horizontal", 16, 3, 18, 3),
    Sketcher.Constraint("Horizontal", 18, 3, 19, 3),
    Sketcher.Constraint("Vertical", 0, 3, 3, 3),
    Sketcher.Constraint("Vertical", 2, 3, 4, 3),
    Sketcher.Constraint("Vertical", 1, 3, 5, 3),
    Sketcher.Constraint("Vertical", 3, 3, 6, 3),
    Sketcher.Constraint("Vertical", 4, 3, 7, 3),
    Sketcher.Constraint("Vertical", 9, 3, 10, 3),
    Sketcher.Constraint("Vertical", 8, 3, 11, 3),
    Sketcher.Constraint("Vertical", 10, 3, 14, 3),
    Sketcher.Constraint("Vertical", 14, 3, 15, 3),
    Sketcher.Constraint("Vertical", 13, 3, 16, 3),
    Sketcher.Constraint("Vertical", 7, 3, 17, 3),
    Sketcher.Constraint("Vertical", 12, 3, 18, 3),
    Sketcher.Constraint("Vertical", 17, 3, 19, 3),
    Sketcher.Constraint("Diameter", 0, Q("3.2 mm")),
    Sketcher.Constraint("Diameter", 8, Q("2.7 mm")),
    Sketcher.Constraint("DistanceY", -1, 1, 3, 3, Q("82 mm")),
    Sketcher.Constraint("DistanceY", -1, 1, 12, 3, Q("112 mm")),
    Sketcher.Constraint("DistanceY", -1, 1, 15, 3, Q("52 mm")),
    Sketcher.Constraint("DistanceX", 0, 3, 2, 3, Q("55 mm")),
    Sketcher.Constraint("DistanceY", 4, 3, 2, 3, Q("95 mm")),
    Sketcher.Constraint("DistanceX", 8, 3, 3, 3, Q("43 mm")),
    Sketcher.Constraint("DistanceY", 8, 3, 0, 3, Q("30 mm")),
    Sketcher.Constraint("DistanceX", 9, 3, 3, 3, Q("8 mm")),
    Sketcher.Constraint("DistanceY", 6, 3, 10, 3, Q("30 mm")),
    Sketcher.Constraint("DistanceX", 2, 3, 12, 3, Q("20 mm")),
    Sketcher.Constraint("DistanceX", 8, 3, 13, 3, Q("15 mm")),
    Sketcher.Constraint("DistanceY", -1, 1, 0, 3, Q("129.5 mm")),
    Sketcher.Constraint("DistanceX", 0, 3, 1, 3, Q("27.5 mm")),
    Sketcher.Constraint("DistanceX", -1, 1, 0, 3, Q("71.449194 mm")),
])
pocket6 = body.newObject("PartDesign::Pocket", "Pocket005")
pocket6.Profile = sketch8
pocket6.Type = "ThroughAll"

sketch9 = body.newObject("Sketcher::SketchObject", "Sketch008")
sketch9.AttachmentSupport = (doc.getObject("XY_Plane"), [""])
sketch9.MapMode = "FlatFace"
sketch9.AttachmentOffset = App.Placement(App.Vector(0, 0, 1), App.Rotation())
sketch9.addGeometry([
    Part.LineSegment(App.Vector(159, 94.5, 0), App.Vector(151.5, 94.5, 0)),
    Part.LineSegment(App.Vector(151.5, 94.5, 0), App.Vector(151.5, 69.5, 0)),
    Part.LineSegment(App.Vector(151.5, 69.5, 0), App.Vector(159, 69.5, 0)),
    Part.LineSegment(App.Vector(159, 69.5, 0), App.Vector(159, 70.2, 0)),
    Part.ArcOfCircle(Part.Circle(App.Vector(160.5, 70.3, 0), App.Vector(0, 0, 1), 1.5), math.radians(90), math.radians(180)),
    Part.LineSegment(App.Vector(160.5, 71.8, 0), App.Vector(162, 71.8, 0)),
    Part.ArcOfCircle(Part.Circle(App.Vector(162, 73.8, 0), App.Vector(0, 0, 1), 2), math.radians(-90), math.radians(0)),
    Part.LineSegment(App.Vector(164, 73.8, 0), App.Vector(164, 90.2, 0)),
    Part.ArcOfCircle(Part.Circle(App.Vector(162, 90.2, 0), App.Vector(0, 0, 1), 2), math.radians(0), math.radians(90)),
    Part.LineSegment(App.Vector(162, 92.2, 0), App.Vector(160.5, 92.2, 0)),
    Part.ArcOfCircle(Part.Circle(App.Vector(160.5, 93.7, 0), App.Vector(0, 0, 1), 1.5), math.radians(180), math.radians(270)),
    Part.LineSegment(App.Vector(159, 93.8, 0), App.Vector(159, 94.5, 0)),
], False)
sketch9.addConstraint([
    Sketcher.Constraint("Coincident", 0, 2, 1, 1),
    Sketcher.Constraint("Coincident", 1, 2, 2, 1),
    Sketcher.Constraint("Coincident", 2, 2, 3, 1),
    Sketcher.Constraint("Tangent", 3, 2, 4, 2),
    Sketcher.Constraint("Tangent", 4, 1, 5, 1),
    Sketcher.Constraint("Tangent", 5, 2, 6, 1),
    Sketcher.Constraint("Tangent", 6, 2, 7, 1),
    Sketcher.Constraint("Tangent", 7, 2, 8, 1),
    Sketcher.Constraint("Tangent", 8, 2, 9, 1),
    Sketcher.Constraint("Tangent", 9, 2, 10, 2),
    Sketcher.Constraint("Tangent", 10, 1, 11, 1),
    Sketcher.Constraint("Coincident", 11, 2, 0, 1),
    Sketcher.Constraint("Horizontal", 0),
    Sketcher.Constraint("Vertical", 1),
    Sketcher.Constraint("Horizontal", 2),
    Sketcher.Constraint("Vertical", 3),
    Sketcher.Constraint("Horizontal", 5),
    Sketcher.Constraint("Vertical", 7),
    Sketcher.Constraint("Horizontal", 9),
    Sketcher.Constraint("Vertical", 11),
    Sketcher.Constraint("Equal", 6, 8),
    Sketcher.Constraint("Equal", 4, 10),
    Sketcher.Constraint("Vertical", 4, 3, 10, 3),
    Sketcher.Constraint("Equal", 3, 11),
    Sketcher.Constraint("Radius", 6, Q("2 mm")),
    Sketcher.Constraint("Radius", 4, Q("1.5 mm")),
    Sketcher.Constraint("DistanceY", 1, 2, 1, 1, Q("25 mm")),
    Sketcher.Constraint("DistanceX", 0, 2, 0, 1, Q("7.5 mm")),
    Sketcher.Constraint("DistanceX", 5, 1, 5, 2, Q("1.5 mm")),
    Sketcher.Constraint("DistanceY", 7, 1, 7, 2, Q("16.5 mm")),
    Sketcher.Constraint("DistanceX", -1, 1, 6, 3, Q("162 mm")),
    Sketcher.Constraint("DistanceY", -1, 1, 0, 2, Q("94.5 mm")),
])
pocket7 = body.newObject("PartDesign::Pocket", "Pocket006")
pocket7.Profile = sketch9
pocket7.Type = "ThroughAll"
doc.recompute()

fillet4 = body.newObject("PartDesign::Fillet", "Fillet003")
fillet4.Base = (pocket7, edges_at(pocket7, [
    (159, 94.5, 0.5),
    (159, 69.5, 0.5),
    (151.5, 69.5, 0.5),
    (151.5, 94.5, 0.5),
]))
fillet4.Radius = 1.5

doc.recompute()
